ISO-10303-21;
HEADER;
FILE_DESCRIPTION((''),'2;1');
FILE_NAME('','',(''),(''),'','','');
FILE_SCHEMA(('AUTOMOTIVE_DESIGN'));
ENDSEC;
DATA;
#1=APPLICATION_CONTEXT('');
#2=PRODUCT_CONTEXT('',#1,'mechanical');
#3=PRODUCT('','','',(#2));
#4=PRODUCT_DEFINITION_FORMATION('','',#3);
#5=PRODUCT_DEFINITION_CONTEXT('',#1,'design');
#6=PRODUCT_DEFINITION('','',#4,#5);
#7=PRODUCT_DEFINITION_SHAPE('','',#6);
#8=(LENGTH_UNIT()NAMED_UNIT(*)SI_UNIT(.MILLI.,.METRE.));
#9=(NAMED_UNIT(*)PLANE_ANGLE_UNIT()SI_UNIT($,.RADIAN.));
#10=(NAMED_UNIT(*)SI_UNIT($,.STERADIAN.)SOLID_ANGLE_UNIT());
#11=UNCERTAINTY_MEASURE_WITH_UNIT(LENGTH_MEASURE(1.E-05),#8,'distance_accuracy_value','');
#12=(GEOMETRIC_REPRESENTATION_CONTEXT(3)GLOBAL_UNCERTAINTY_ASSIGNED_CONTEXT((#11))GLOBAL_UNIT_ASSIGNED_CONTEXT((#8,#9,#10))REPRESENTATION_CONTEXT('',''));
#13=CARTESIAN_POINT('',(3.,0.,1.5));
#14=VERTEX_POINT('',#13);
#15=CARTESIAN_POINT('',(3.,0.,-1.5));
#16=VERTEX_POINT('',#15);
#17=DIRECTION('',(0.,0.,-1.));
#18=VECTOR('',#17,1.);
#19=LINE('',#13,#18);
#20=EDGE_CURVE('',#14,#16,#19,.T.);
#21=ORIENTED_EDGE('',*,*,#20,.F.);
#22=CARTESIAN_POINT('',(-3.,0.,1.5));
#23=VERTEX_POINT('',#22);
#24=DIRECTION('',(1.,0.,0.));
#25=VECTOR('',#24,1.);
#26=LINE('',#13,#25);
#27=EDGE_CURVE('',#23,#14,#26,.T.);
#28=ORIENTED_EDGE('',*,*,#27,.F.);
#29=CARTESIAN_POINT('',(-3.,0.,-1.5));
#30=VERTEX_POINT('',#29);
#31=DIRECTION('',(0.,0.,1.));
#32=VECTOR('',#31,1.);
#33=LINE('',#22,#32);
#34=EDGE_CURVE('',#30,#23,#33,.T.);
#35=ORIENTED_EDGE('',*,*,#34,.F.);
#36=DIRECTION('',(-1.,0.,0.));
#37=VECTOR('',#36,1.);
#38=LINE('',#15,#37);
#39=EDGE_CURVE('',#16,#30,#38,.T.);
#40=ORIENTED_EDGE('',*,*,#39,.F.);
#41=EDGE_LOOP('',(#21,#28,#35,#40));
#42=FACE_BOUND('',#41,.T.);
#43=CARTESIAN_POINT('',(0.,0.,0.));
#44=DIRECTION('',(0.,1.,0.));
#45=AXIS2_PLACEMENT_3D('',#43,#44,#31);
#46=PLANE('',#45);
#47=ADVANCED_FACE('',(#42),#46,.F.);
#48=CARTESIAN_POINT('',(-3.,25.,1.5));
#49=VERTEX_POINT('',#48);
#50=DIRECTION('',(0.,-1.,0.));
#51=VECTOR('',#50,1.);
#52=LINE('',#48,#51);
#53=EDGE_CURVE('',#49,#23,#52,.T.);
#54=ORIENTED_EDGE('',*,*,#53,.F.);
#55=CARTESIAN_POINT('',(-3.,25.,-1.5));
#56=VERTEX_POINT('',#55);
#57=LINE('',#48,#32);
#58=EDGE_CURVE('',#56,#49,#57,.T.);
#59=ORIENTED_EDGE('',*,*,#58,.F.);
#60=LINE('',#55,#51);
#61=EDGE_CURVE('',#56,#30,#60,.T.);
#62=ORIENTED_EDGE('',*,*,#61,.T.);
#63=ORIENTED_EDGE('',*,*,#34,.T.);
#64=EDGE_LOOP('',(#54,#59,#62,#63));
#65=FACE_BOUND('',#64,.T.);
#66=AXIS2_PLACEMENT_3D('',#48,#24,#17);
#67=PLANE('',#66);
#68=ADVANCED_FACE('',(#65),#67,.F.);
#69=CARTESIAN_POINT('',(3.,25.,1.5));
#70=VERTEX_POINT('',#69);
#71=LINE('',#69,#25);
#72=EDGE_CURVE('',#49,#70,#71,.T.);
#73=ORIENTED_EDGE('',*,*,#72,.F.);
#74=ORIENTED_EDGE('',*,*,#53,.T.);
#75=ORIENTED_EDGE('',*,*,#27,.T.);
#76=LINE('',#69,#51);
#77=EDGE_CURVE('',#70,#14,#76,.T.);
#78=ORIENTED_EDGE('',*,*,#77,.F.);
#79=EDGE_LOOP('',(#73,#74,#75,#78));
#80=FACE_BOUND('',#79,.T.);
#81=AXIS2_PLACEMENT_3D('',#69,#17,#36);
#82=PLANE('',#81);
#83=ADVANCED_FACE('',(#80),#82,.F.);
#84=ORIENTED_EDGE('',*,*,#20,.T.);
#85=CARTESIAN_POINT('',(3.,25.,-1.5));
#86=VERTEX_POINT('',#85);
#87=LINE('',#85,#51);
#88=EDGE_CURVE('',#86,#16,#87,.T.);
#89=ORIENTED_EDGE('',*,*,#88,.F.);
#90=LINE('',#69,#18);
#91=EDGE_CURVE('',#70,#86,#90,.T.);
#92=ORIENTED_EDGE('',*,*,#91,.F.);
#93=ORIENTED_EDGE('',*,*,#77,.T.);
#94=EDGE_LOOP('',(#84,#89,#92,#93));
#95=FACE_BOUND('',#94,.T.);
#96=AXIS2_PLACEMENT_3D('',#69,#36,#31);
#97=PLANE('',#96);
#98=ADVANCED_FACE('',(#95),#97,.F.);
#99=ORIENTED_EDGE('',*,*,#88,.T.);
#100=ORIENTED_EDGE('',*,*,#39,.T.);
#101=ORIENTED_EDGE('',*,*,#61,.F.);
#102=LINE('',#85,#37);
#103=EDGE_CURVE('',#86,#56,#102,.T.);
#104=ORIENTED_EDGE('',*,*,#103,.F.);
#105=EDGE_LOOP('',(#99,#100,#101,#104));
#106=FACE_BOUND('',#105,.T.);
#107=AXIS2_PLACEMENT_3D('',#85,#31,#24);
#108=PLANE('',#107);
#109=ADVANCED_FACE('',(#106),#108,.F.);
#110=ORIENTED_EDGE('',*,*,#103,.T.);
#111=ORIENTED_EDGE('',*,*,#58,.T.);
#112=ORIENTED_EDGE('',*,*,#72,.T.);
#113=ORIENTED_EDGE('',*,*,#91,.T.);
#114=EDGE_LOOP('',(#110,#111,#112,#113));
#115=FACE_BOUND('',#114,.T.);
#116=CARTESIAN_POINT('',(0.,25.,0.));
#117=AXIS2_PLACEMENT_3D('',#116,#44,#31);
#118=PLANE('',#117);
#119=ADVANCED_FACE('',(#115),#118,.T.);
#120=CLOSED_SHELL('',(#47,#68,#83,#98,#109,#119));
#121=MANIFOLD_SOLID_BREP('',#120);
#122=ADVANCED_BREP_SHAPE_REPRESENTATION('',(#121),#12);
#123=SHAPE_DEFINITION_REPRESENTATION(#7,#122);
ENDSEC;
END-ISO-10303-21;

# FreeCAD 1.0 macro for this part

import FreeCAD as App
import Part
import Sketcher
from FreeCAD import Vector
Q = App.Units.Quantity

doc = App.newDocument("Part")
body = doc.addObject("PartDesign::Body", "Body")

# Sketch on XZ plane
sketch1 = body.newObject("Sketcher::SketchObject", "Sketch")
sketch1.AttachmentSupport = (doc.getObject("XZ_Plane"), [""])
sketch1.MapMode = "FlatFace"
sketch1.addGeometry(Part.LineSegment(Vector(-3, -1.5, 0), Vector(-3, 1.5, 0)), False)
sketch1.addGeometry(Part.LineSegment(Vector(-3, 1.5, 0), Vector(3, 1.5, 0)), False)
sketch1.addGeometry(Part.LineSegment(Vector(3, 1.5, 0), Vector(3, -1.5, 0)), False)
sketch1.addGeometry(Part.LineSegment(Vector(3, -1.5, 0), Vector(-3, -1.5, 0)), False)
sketch1.addConstraint(Sketcher.Constraint("Coincident", 0, 2, 1, 1))
sketch1.addConstraint(Sketcher.Constraint("Coincident", 1, 2, 2, 1))
sketch1.addConstraint(Sketcher.Constraint("Coincident", 2, 2, 3, 1))
sketch1.addConstraint(Sketcher.Constraint("Coincident", 3, 2, 0, 1))
sketch1.addConstraint(Sketcher.Constraint("Vertical", 0))
sketch1.addConstraint(Sketcher.Constraint("Horizontal", 1))
sketch1.addConstraint(Sketcher.Constraint("Vertical", 2))
sketch1.addConstraint(Sketcher.Constraint("Horizontal", 3))
sketch1.addConstraint(Sketcher.Constraint("Symmetric", 0, 2, 2, 2, -1, 1))
sketch1.addConstraint(Sketcher.Constraint("DistanceX", 1, 1, 1, 2, Q("6 mm")))
sketch1.addConstraint(Sketcher.Constraint("DistanceY", 0, 1, 0, 2, Q("3 mm")))
pad1 = body.newObject("PartDesign::Pad", "Pad")
pad1.Profile = sketch1
pad1.Length = 25
pad1.Reversed = True

doc.recompute()
